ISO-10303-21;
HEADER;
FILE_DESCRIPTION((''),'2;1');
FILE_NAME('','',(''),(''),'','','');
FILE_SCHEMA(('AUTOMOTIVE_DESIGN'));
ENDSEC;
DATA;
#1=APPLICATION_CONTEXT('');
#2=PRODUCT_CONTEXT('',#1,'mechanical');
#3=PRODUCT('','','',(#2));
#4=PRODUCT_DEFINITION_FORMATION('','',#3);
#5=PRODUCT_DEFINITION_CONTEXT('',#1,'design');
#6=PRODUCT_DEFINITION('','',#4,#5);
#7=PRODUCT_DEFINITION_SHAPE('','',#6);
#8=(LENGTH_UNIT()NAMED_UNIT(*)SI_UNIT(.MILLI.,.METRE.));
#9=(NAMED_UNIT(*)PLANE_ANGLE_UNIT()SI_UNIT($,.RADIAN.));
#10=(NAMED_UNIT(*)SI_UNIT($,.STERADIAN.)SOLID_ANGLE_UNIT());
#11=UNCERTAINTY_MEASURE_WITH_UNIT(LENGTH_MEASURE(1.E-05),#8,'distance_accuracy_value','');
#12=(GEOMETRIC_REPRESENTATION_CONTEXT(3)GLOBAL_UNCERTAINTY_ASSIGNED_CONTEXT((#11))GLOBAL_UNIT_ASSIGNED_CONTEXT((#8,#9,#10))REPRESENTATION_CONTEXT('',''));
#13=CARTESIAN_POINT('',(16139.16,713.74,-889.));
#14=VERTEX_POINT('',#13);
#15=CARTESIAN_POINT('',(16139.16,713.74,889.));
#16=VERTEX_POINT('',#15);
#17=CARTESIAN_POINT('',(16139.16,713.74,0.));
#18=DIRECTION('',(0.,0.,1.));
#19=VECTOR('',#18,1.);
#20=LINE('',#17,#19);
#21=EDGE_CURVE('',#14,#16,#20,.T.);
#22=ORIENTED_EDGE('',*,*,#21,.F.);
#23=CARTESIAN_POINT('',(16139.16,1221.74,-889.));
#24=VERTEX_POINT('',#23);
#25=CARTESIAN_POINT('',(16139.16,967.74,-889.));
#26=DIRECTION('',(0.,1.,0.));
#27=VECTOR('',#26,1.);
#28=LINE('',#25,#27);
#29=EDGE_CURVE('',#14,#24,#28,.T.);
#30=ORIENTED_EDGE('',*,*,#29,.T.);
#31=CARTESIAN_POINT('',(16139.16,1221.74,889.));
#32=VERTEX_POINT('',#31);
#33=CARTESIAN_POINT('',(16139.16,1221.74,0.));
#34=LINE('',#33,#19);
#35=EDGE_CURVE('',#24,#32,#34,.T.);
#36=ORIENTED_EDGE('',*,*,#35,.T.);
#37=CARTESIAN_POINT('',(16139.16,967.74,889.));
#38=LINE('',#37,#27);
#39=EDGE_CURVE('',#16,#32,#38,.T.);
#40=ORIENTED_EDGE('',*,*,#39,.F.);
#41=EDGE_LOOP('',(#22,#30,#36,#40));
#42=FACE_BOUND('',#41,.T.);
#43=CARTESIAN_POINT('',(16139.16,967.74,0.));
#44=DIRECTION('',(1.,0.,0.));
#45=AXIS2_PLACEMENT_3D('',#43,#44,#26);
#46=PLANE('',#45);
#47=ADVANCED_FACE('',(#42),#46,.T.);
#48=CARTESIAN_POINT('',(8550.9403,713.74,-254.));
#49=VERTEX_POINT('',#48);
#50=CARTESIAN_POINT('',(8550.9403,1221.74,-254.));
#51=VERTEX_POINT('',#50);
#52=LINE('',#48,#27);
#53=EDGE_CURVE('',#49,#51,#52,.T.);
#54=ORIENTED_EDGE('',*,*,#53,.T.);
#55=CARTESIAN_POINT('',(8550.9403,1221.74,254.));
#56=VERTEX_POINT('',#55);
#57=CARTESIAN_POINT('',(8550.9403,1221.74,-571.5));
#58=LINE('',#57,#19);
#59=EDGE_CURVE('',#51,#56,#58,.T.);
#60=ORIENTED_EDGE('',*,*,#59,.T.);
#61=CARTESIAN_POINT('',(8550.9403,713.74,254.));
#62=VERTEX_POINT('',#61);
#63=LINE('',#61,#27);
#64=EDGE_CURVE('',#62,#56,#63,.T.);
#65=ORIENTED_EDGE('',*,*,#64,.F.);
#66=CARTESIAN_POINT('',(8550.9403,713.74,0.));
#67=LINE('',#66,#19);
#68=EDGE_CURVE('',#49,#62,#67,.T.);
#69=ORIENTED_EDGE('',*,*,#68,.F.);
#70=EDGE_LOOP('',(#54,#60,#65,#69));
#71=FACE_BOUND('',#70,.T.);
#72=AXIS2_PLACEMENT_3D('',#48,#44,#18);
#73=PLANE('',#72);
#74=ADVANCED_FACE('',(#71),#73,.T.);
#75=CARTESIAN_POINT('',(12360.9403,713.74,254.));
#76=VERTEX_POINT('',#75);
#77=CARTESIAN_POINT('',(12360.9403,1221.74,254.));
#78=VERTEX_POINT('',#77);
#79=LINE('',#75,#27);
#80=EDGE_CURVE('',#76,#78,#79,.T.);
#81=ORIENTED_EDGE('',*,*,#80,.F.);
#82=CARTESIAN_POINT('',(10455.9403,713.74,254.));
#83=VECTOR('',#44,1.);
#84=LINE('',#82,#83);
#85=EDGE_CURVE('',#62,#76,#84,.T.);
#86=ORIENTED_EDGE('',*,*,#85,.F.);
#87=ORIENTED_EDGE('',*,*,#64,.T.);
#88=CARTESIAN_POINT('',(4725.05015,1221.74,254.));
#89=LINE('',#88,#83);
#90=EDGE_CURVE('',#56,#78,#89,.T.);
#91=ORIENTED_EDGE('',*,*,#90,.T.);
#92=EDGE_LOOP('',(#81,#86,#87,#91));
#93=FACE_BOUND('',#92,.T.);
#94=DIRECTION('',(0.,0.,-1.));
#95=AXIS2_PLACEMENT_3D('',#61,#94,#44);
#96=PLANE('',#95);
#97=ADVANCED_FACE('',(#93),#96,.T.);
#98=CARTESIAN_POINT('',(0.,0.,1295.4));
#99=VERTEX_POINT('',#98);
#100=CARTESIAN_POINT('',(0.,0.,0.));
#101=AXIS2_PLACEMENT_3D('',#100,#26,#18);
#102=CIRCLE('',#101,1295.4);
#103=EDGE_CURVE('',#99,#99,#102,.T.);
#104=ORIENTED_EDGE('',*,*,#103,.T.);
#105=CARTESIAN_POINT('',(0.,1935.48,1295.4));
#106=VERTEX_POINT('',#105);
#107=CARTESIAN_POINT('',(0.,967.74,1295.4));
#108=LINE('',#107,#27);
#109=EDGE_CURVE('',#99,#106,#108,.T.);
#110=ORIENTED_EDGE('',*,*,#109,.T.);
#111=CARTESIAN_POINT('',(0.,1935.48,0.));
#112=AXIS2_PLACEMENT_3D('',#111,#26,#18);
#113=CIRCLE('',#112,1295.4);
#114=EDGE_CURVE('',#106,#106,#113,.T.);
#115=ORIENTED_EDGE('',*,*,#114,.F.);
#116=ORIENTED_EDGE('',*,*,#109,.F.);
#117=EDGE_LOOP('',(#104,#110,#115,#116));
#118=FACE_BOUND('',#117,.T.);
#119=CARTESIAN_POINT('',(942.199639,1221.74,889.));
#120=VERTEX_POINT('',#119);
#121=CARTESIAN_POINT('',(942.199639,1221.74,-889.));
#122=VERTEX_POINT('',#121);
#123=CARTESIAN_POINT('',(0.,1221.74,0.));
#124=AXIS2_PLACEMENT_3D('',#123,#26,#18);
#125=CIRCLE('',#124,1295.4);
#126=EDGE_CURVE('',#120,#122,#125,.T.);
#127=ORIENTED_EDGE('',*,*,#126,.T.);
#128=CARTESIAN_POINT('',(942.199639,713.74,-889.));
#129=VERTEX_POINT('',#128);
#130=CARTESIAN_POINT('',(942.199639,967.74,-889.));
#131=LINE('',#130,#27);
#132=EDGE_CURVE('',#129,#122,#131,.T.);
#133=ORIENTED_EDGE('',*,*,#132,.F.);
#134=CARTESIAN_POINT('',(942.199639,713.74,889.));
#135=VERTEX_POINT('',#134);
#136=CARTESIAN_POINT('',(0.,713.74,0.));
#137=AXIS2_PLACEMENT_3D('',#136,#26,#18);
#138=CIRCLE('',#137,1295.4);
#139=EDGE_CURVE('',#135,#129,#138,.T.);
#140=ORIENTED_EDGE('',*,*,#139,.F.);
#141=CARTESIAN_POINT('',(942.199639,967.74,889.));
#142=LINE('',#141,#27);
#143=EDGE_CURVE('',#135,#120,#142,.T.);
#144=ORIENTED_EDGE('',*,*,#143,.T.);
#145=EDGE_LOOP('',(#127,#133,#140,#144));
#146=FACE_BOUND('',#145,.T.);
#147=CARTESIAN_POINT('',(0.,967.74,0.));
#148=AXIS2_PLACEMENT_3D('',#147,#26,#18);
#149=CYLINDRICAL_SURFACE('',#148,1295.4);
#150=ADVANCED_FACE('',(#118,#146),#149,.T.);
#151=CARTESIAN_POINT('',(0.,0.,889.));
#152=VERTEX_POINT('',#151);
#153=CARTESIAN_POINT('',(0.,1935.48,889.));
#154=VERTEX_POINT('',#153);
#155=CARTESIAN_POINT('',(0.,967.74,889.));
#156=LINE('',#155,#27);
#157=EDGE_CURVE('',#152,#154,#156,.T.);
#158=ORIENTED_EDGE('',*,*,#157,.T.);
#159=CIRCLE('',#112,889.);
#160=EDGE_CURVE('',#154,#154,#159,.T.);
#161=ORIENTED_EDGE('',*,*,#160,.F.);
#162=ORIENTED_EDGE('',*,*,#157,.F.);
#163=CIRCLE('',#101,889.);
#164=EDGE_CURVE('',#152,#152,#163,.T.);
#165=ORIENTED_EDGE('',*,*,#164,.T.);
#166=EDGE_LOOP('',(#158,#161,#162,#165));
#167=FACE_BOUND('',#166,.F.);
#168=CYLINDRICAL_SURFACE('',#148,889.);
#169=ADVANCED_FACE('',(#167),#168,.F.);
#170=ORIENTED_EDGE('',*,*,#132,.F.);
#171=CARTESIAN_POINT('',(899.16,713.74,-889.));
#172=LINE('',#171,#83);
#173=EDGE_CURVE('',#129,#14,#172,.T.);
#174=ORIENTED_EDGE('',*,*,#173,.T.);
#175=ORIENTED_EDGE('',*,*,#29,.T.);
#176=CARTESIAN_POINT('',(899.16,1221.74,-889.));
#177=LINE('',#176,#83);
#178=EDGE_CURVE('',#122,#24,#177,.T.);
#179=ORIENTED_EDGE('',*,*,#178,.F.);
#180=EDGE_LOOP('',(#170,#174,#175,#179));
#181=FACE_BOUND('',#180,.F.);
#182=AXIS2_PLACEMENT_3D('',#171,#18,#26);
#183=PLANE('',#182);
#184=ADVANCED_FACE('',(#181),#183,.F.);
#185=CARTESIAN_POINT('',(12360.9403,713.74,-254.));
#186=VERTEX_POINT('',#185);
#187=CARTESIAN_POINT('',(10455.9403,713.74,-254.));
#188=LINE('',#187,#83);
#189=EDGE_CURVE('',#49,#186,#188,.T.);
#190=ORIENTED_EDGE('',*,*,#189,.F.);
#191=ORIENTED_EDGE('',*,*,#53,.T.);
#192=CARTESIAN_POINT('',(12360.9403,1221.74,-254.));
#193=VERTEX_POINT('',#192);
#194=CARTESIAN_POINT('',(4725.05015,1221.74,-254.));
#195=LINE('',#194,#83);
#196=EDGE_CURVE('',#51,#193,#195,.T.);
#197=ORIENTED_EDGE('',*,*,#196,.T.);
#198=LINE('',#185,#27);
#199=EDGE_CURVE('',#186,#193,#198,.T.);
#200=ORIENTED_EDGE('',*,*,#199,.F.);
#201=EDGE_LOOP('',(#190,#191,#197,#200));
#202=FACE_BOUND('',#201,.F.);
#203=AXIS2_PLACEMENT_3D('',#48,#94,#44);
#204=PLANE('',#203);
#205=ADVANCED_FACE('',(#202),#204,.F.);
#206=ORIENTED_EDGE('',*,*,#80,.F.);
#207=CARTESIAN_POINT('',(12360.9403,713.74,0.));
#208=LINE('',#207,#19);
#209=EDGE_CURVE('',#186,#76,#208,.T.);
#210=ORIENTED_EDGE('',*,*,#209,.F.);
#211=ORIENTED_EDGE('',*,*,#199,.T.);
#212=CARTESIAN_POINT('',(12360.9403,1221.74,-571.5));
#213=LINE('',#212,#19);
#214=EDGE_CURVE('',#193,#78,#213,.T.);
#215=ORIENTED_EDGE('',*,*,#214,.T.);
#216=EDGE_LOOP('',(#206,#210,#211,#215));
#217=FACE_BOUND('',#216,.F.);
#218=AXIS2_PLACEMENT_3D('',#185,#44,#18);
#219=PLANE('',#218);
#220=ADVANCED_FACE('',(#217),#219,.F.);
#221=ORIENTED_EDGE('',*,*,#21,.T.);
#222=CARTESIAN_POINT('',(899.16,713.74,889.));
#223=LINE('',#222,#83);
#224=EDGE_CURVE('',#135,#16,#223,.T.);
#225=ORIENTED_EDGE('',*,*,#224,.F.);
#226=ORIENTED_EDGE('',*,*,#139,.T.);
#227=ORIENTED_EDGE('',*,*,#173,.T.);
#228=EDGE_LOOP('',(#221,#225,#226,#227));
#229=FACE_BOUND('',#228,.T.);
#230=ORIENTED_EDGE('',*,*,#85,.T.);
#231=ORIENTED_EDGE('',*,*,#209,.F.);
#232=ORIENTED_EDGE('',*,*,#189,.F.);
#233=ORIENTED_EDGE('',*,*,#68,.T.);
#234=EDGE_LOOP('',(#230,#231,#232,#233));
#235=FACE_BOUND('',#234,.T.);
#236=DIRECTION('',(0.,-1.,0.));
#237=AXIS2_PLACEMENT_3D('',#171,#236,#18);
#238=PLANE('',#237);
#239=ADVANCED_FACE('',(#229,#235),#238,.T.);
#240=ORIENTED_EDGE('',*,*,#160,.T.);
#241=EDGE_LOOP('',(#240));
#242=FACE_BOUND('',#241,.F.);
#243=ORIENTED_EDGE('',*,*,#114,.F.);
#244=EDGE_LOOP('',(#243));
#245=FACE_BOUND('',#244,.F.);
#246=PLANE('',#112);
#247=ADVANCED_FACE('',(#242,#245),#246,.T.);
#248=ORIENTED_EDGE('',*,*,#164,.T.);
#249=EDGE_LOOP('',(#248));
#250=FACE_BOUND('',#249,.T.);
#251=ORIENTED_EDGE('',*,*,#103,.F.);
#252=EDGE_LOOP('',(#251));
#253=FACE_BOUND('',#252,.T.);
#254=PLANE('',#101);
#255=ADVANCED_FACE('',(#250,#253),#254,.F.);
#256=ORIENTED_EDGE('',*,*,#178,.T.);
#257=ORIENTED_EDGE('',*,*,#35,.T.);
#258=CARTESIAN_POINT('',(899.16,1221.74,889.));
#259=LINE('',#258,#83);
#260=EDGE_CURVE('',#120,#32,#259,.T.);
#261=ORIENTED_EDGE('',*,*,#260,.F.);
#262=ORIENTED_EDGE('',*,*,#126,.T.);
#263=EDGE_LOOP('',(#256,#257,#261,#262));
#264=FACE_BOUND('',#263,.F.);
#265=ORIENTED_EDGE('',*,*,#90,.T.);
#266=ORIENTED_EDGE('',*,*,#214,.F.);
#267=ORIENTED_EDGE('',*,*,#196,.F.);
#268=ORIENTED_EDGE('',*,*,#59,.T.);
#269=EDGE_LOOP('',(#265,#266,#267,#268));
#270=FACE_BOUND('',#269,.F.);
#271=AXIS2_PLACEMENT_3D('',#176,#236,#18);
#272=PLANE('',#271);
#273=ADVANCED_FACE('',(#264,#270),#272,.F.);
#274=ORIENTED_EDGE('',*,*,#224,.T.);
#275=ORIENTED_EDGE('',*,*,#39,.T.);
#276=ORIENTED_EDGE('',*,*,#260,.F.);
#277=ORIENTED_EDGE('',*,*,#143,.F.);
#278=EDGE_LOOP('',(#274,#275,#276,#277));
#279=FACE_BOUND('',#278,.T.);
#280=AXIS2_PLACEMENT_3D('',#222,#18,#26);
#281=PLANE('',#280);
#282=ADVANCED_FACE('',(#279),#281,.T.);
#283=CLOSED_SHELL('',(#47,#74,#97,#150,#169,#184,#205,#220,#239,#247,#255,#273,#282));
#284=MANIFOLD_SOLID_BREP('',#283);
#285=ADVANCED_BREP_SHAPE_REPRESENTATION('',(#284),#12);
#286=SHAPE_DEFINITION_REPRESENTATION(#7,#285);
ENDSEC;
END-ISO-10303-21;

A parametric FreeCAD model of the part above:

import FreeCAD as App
import Part
import Sketcher
Q = App.Units.Quantity


def add_polygon(sketch, points):
    """Adds a closed chain of lines whose ends are joined by coincident constraints."""
    first, n = sketch.GeometryCount, len(points)
    for a, b in zip(points, points[1:] + points[:1]):
        sketch.addGeometry(Part.LineSegment(App.Vector(*a, 0), App.Vector(*b, 0)), False)
    for i in range(n):
        sketch.addConstraint(Sketcher.Constraint("Coincident", first + i, 2, first + (i + 1) % n, 1))

doc = App.newDocument("Part")
body = doc.addObject("PartDesign::Body", "Body")

# Sketch on YZ plane
sketch1 = body.newObject("Sketcher::SketchObject", "Sketch")
sketch1.AttachmentSupport = (doc.getObject("YZ_Plane"), [""])
sketch1.MapMode = "FlatFace"
add_polygon(sketch1, [(0, 1295), (0, 889), (1935, 889), (1935, 1295)])  # lines 0-3
sketch1.addConstraint(Sketcher.Constraint("Vertical", 0))
sketch1.addConstraint(Sketcher.Constraint("Horizontal", 1))
sketch1.addConstraint(Sketcher.Constraint("Vertical", 2))
sketch1.addConstraint(Sketcher.Constraint("Horizontal", 3))
sketch1.addConstraint(Sketcher.Constraint("PointOnObject", 0, 2, -2))
sketch1.addConstraint(Sketcher.Constraint("DistanceY", 0, 2, 0, 1, Q("16 in")))
sketch1.addConstraint(Sketcher.Constraint("DistanceX", 1, 1, 1, 2, Q("76.2 in")))
sketch1.addConstraint(Sketcher.Constraint("DistanceY", -1, 1, 0, 2, Q("35 in")))
revolution = body.newObject("PartDesign::Revolution", "Revolution")
revolution.Profile = sketch1
revolution.ReferenceAxis = (sketch1, ["H_Axis"])
revolution.Angle = 360

# Sketch on YZ plane
sketch2 = body.newObject("Sketcher::SketchObject", "Sketch001")
sketch2.AttachmentSupport = (doc.getObject("YZ_Plane"), [""])
sketch2.MapMode = "FlatFace"
sketch2.AttachmentOffset = App.Placement(App.Vector(0, 0, 35.4 * 25.4), App.Rotation())
add_polygon(sketch2, [(714, 889), (714, -889), (1222, -889), (1222, 889)])  # lines 0-3
sketch2.addConstraint(Sketcher.Constraint("Vertical", 0))
sketch2.addConstraint(Sketcher.Constraint("Horizontal", 1))
sketch2.addConstraint(Sketcher.Constraint("Vertical", 2))
sketch2.addConstraint(Sketcher.Constraint("Horizontal", 3))
sketch2.addConstraint(Sketcher.Constraint("DistanceX", 1, 1, 1, 2, Q("20 in")))
sketch2.addConstraint(Sketcher.Constraint("DistanceY", 0, 2, 0, 1, Q("70 in")))
sketch2.addConstraint(Sketcher.Constraint("DistanceY", 0, 2, -1, 1, Q("35 in")))
sketch2.addConstraint(Sketcher.Constraint("DistanceX", -1, 1, 0, 2, Q("28.1 in")))
pad1 = body.newObject("PartDesign::Pad", "Pad")
pad1.Profile = sketch2
pad1.Length = Q("600 in")

# Sketch on XZ plane
sketch3 = body.newObject("Sketcher::SketchObject", "Sketch002")
sketch3.AttachmentSupport = (doc.getObject("XZ_Plane"), [""])
sketch3.MapMode = "FlatFace"
sketch3.AttachmentOffset = App.Placement(App.Vector(0, 0, -28.1 * 25.4), App.Rotation())
add_polygon(sketch3, [(8551, 254), (8551, -254), (12361, -254), (12361, 254)])  # lines 0-3
sketch3.addConstraint(Sketcher.Constraint("Vertical", 0))
sketch3.addConstraint(Sketcher.Constraint("Horizontal", 1))
sketch3.addConstraint(Sketcher.Constraint("Vertical", 2))
sketch3.addConstraint(Sketcher.Constraint("Horizontal", 3))
sketch3.addConstraint(Sketcher.Constraint("DistanceX", 1, 1, 1, 2, Q("150 in")))
sketch3.addConstraint(Sketcher.Constraint("DistanceY", 0, 2, 0, 1, Q("20 in")))
sketch3.addConstraint(Sketcher.Constraint("DistanceY", 0, 2, -1, 1, Q("10 in")))
sketch3.addConstraint(Sketcher.Constraint("DistanceX", -1, 1, 0, 2, Q("8550.9403 mm")))
pocket1 = body.newObject("PartDesign::Pocket", "Pocket")
pocket1.Profile = sketch3
pocket1.Type = "ThroughAll"

doc.recompute()
